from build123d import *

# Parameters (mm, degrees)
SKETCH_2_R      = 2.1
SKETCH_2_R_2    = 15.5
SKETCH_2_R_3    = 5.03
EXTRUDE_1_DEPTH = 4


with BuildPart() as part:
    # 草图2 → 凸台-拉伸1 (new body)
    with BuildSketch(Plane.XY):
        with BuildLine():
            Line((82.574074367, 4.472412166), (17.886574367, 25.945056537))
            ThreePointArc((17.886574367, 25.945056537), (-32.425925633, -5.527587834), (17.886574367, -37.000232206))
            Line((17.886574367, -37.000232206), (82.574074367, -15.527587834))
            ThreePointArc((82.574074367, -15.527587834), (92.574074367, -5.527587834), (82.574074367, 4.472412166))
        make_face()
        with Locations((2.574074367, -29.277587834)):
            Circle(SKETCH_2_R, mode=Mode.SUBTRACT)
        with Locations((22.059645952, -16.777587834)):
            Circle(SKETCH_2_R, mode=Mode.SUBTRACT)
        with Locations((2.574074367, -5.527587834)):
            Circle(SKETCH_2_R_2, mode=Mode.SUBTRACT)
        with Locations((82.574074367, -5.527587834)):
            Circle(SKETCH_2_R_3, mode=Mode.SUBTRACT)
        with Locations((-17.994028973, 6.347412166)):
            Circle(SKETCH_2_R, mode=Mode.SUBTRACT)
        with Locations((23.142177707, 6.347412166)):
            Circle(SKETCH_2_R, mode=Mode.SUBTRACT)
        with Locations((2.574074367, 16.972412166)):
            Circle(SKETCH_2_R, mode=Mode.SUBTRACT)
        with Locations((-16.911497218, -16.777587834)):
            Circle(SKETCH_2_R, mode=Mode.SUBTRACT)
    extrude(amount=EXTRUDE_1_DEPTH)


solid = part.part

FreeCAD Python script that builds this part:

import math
import FreeCAD as App
import Part
import Sketcher

doc = App.newDocument("Part")
body = doc.addObject("PartDesign::Body", "Body")

# Sketch on XY plane
sketch1 = body.newObject("Sketcher::SketchObject", "Sketch")
sketch1.AttachmentSupport = (doc.getObject("XY_Plane"), [""])
sketch1.MapMode = "FlatFace"
sketch1.addGeometry(Part.LineSegment(App.Vector(82.6, 4.5, 0), App.Vector(17.9, 25.9, 0)), False)
sketch1.addGeometry(Part.ArcOfCircle(Part.Circle(App.Vector(2.6, -5.5, 0), App.Vector(0, 0, 1), 35), math.radians(64), math.radians(296)), False)
sketch1.addGeometry(Part.LineSegment(App.Vector(17.9, -37, 0), App.Vector(82.6, -15.5, 0)), False)
sketch1.addGeometry(Part.ArcOfCircle(Part.Circle(App.Vector(82.6, -5.5, 0), App.Vector(0, 0, 1), 10), math.radians(-90), math.radians(90)), False)
sketch1.addGeometry(Part.Circle(App.Vector(2.6, -29.3, 0), App.Vector(0, 0, 1), 2.1), False)
sketch1.addGeometry(Part.Circle(App.Vector(-16.9, -16.8, 0), App.Vector(0, 0, 1), 2.1), False)
sketch1.addGeometry(Part.Circle(App.Vector(22.1, -16.8, 0), App.Vector(0, 0, 1), 2.1), False)
sketch1.addGeometry(Part.Circle(App.Vector(2.6, -5.5, 0), App.Vector(0, 0, 1), 15.5), False)
sketch1.addGeometry(Part.Circle(App.Vector(-18, 6.3, 0), App.Vector(0, 0, 1), 2.1), False)
sketch1.addGeometry(Part.Circle(App.Vector(23.1, 6.3, 0), App.Vector(0, 0, 1), 2.1), False)
sketch1.addGeometry(Part.Circle(App.Vector(2.6, 17, 0), App.Vector(0, 0, 1), 2.1), False)
sketch1.addGeometry(Part.Circle(App.Vector(82.6, -5.5, 0), App.Vector(0, 0, 1), 5), False)
sketch1.addConstraint(Sketcher.Constraint("Coincident", 0, 2, 1, 1))
sketch1.addConstraint(Sketcher.Constraint("Coincident", 1, 2, 2, 1))
sketch1.addConstraint(Sketcher.Constraint("Coincident", 2, 2, 3, 1))
sketch1.addConstraint(Sketcher.Constraint("Coincident", 3, 2, 0, 1))
sketch1.addConstraint(Sketcher.Constraint("Coincident", 7, 3, 1, 3))
sketch1.addConstraint(Sketcher.Constraint("Coincident", 11, 3, 3, 3))
sketch1.addConstraint(Sketcher.Constraint("Equal", 4, 5))
sketch1.addConstraint(Sketcher.Constraint("Equal", 5, 6))
sketch1.addConstraint(Sketcher.Constraint("Equal", 6, 8))
sketch1.addConstraint(Sketcher.Constraint("Equal", 8, 9))
sketch1.addConstraint(Sketcher.Constraint("Equal", 9, 10))
sketch1.addConstraint(Sketcher.Constraint("Horizontal", 1, 3, 3, 3))
sketch1.addConstraint(Sketcher.Constraint("Horizontal", 5, 3, 6, 3))
sketch1.addConstraint(Sketcher.Constraint("Horizontal", 8, 3, 9, 3))
sketch1.addConstraint(Sketcher.Constraint("Vertical", 1, 3, 4, 3))
sketch1.addConstraint(Sketcher.Constraint("Vertical", 7, 3, 10, 3))
sketch1.addConstraint(Sketcher.Constraint("Vertical", 0, 2, 1, 2))
sketch1.addConstraint(Sketcher.Constraint("Vertical", 11, 3, 2, 2))
sketch1.addConstraint(Sketcher.Constraint("Vertical", 2, 2, 3, 2))
sketch1.addConstraint(Sketcher.Constraint("Diameter", 7, 31.0))
sketch1.addConstraint(Sketcher.Constraint("Radius", 1, 35.0))
sketch1.addConstraint(Sketcher.Constraint("Radius", 3, 10.0))
sketch1.addConstraint(Sketcher.Constraint("Diameter", 4, 4.2))
sketch1.addConstraint(Sketcher.Constraint("Diameter", 11, 10.06))
sketch1.addConstraint(Sketcher.Constraint("DistanceX", 1, 3, 3, 3, 80.0))
sketch1.addConstraint(Sketcher.Constraint("DistanceY", 4, 3, 5, 3, 12.5))
sketch1.addConstraint(Sketcher.Constraint("DistanceY", 7, 3, 10, 3, 22.5))
sketch1.addConstraint(Sketcher.Constraint("DistanceY", 4, 3, 1, 3, 23.75))
sketch1.addConstraint(Sketcher.Constraint("DistanceY", 5, 3, 8, 3, 23.125))
sketch1.addConstraint(Sketcher.Constraint("DistanceX", 10, 3, 0, 2, 15.3125))
sketch1.addConstraint(Sketcher.Constraint("DistanceX", 8, 3, -1, 1, 17.994029))
sketch1.addConstraint(Sketcher.Constraint("DistanceX", 5, 3, 1, 3, 19.485572))
sketch1.addConstraint(Sketcher.Constraint("DistanceX", 1, 3, 6, 3, 19.485572))
sketch1.addConstraint(Sketcher.Constraint("DistanceX", 8, 3, 5, 3, 1.082532))
sketch1.addConstraint(Sketcher.Constraint("DistanceX", 6, 3, 9, 3, 1.082532))
sketch1.addConstraint(Sketcher.Constraint("DistanceY", 1, 3, -1, 1, 5.527588))
pad1 = body.newObject("PartDesign::Pad", "Pad")
pad1.Profile = sketch1
pad1.Length = 4

doc.recompute()
